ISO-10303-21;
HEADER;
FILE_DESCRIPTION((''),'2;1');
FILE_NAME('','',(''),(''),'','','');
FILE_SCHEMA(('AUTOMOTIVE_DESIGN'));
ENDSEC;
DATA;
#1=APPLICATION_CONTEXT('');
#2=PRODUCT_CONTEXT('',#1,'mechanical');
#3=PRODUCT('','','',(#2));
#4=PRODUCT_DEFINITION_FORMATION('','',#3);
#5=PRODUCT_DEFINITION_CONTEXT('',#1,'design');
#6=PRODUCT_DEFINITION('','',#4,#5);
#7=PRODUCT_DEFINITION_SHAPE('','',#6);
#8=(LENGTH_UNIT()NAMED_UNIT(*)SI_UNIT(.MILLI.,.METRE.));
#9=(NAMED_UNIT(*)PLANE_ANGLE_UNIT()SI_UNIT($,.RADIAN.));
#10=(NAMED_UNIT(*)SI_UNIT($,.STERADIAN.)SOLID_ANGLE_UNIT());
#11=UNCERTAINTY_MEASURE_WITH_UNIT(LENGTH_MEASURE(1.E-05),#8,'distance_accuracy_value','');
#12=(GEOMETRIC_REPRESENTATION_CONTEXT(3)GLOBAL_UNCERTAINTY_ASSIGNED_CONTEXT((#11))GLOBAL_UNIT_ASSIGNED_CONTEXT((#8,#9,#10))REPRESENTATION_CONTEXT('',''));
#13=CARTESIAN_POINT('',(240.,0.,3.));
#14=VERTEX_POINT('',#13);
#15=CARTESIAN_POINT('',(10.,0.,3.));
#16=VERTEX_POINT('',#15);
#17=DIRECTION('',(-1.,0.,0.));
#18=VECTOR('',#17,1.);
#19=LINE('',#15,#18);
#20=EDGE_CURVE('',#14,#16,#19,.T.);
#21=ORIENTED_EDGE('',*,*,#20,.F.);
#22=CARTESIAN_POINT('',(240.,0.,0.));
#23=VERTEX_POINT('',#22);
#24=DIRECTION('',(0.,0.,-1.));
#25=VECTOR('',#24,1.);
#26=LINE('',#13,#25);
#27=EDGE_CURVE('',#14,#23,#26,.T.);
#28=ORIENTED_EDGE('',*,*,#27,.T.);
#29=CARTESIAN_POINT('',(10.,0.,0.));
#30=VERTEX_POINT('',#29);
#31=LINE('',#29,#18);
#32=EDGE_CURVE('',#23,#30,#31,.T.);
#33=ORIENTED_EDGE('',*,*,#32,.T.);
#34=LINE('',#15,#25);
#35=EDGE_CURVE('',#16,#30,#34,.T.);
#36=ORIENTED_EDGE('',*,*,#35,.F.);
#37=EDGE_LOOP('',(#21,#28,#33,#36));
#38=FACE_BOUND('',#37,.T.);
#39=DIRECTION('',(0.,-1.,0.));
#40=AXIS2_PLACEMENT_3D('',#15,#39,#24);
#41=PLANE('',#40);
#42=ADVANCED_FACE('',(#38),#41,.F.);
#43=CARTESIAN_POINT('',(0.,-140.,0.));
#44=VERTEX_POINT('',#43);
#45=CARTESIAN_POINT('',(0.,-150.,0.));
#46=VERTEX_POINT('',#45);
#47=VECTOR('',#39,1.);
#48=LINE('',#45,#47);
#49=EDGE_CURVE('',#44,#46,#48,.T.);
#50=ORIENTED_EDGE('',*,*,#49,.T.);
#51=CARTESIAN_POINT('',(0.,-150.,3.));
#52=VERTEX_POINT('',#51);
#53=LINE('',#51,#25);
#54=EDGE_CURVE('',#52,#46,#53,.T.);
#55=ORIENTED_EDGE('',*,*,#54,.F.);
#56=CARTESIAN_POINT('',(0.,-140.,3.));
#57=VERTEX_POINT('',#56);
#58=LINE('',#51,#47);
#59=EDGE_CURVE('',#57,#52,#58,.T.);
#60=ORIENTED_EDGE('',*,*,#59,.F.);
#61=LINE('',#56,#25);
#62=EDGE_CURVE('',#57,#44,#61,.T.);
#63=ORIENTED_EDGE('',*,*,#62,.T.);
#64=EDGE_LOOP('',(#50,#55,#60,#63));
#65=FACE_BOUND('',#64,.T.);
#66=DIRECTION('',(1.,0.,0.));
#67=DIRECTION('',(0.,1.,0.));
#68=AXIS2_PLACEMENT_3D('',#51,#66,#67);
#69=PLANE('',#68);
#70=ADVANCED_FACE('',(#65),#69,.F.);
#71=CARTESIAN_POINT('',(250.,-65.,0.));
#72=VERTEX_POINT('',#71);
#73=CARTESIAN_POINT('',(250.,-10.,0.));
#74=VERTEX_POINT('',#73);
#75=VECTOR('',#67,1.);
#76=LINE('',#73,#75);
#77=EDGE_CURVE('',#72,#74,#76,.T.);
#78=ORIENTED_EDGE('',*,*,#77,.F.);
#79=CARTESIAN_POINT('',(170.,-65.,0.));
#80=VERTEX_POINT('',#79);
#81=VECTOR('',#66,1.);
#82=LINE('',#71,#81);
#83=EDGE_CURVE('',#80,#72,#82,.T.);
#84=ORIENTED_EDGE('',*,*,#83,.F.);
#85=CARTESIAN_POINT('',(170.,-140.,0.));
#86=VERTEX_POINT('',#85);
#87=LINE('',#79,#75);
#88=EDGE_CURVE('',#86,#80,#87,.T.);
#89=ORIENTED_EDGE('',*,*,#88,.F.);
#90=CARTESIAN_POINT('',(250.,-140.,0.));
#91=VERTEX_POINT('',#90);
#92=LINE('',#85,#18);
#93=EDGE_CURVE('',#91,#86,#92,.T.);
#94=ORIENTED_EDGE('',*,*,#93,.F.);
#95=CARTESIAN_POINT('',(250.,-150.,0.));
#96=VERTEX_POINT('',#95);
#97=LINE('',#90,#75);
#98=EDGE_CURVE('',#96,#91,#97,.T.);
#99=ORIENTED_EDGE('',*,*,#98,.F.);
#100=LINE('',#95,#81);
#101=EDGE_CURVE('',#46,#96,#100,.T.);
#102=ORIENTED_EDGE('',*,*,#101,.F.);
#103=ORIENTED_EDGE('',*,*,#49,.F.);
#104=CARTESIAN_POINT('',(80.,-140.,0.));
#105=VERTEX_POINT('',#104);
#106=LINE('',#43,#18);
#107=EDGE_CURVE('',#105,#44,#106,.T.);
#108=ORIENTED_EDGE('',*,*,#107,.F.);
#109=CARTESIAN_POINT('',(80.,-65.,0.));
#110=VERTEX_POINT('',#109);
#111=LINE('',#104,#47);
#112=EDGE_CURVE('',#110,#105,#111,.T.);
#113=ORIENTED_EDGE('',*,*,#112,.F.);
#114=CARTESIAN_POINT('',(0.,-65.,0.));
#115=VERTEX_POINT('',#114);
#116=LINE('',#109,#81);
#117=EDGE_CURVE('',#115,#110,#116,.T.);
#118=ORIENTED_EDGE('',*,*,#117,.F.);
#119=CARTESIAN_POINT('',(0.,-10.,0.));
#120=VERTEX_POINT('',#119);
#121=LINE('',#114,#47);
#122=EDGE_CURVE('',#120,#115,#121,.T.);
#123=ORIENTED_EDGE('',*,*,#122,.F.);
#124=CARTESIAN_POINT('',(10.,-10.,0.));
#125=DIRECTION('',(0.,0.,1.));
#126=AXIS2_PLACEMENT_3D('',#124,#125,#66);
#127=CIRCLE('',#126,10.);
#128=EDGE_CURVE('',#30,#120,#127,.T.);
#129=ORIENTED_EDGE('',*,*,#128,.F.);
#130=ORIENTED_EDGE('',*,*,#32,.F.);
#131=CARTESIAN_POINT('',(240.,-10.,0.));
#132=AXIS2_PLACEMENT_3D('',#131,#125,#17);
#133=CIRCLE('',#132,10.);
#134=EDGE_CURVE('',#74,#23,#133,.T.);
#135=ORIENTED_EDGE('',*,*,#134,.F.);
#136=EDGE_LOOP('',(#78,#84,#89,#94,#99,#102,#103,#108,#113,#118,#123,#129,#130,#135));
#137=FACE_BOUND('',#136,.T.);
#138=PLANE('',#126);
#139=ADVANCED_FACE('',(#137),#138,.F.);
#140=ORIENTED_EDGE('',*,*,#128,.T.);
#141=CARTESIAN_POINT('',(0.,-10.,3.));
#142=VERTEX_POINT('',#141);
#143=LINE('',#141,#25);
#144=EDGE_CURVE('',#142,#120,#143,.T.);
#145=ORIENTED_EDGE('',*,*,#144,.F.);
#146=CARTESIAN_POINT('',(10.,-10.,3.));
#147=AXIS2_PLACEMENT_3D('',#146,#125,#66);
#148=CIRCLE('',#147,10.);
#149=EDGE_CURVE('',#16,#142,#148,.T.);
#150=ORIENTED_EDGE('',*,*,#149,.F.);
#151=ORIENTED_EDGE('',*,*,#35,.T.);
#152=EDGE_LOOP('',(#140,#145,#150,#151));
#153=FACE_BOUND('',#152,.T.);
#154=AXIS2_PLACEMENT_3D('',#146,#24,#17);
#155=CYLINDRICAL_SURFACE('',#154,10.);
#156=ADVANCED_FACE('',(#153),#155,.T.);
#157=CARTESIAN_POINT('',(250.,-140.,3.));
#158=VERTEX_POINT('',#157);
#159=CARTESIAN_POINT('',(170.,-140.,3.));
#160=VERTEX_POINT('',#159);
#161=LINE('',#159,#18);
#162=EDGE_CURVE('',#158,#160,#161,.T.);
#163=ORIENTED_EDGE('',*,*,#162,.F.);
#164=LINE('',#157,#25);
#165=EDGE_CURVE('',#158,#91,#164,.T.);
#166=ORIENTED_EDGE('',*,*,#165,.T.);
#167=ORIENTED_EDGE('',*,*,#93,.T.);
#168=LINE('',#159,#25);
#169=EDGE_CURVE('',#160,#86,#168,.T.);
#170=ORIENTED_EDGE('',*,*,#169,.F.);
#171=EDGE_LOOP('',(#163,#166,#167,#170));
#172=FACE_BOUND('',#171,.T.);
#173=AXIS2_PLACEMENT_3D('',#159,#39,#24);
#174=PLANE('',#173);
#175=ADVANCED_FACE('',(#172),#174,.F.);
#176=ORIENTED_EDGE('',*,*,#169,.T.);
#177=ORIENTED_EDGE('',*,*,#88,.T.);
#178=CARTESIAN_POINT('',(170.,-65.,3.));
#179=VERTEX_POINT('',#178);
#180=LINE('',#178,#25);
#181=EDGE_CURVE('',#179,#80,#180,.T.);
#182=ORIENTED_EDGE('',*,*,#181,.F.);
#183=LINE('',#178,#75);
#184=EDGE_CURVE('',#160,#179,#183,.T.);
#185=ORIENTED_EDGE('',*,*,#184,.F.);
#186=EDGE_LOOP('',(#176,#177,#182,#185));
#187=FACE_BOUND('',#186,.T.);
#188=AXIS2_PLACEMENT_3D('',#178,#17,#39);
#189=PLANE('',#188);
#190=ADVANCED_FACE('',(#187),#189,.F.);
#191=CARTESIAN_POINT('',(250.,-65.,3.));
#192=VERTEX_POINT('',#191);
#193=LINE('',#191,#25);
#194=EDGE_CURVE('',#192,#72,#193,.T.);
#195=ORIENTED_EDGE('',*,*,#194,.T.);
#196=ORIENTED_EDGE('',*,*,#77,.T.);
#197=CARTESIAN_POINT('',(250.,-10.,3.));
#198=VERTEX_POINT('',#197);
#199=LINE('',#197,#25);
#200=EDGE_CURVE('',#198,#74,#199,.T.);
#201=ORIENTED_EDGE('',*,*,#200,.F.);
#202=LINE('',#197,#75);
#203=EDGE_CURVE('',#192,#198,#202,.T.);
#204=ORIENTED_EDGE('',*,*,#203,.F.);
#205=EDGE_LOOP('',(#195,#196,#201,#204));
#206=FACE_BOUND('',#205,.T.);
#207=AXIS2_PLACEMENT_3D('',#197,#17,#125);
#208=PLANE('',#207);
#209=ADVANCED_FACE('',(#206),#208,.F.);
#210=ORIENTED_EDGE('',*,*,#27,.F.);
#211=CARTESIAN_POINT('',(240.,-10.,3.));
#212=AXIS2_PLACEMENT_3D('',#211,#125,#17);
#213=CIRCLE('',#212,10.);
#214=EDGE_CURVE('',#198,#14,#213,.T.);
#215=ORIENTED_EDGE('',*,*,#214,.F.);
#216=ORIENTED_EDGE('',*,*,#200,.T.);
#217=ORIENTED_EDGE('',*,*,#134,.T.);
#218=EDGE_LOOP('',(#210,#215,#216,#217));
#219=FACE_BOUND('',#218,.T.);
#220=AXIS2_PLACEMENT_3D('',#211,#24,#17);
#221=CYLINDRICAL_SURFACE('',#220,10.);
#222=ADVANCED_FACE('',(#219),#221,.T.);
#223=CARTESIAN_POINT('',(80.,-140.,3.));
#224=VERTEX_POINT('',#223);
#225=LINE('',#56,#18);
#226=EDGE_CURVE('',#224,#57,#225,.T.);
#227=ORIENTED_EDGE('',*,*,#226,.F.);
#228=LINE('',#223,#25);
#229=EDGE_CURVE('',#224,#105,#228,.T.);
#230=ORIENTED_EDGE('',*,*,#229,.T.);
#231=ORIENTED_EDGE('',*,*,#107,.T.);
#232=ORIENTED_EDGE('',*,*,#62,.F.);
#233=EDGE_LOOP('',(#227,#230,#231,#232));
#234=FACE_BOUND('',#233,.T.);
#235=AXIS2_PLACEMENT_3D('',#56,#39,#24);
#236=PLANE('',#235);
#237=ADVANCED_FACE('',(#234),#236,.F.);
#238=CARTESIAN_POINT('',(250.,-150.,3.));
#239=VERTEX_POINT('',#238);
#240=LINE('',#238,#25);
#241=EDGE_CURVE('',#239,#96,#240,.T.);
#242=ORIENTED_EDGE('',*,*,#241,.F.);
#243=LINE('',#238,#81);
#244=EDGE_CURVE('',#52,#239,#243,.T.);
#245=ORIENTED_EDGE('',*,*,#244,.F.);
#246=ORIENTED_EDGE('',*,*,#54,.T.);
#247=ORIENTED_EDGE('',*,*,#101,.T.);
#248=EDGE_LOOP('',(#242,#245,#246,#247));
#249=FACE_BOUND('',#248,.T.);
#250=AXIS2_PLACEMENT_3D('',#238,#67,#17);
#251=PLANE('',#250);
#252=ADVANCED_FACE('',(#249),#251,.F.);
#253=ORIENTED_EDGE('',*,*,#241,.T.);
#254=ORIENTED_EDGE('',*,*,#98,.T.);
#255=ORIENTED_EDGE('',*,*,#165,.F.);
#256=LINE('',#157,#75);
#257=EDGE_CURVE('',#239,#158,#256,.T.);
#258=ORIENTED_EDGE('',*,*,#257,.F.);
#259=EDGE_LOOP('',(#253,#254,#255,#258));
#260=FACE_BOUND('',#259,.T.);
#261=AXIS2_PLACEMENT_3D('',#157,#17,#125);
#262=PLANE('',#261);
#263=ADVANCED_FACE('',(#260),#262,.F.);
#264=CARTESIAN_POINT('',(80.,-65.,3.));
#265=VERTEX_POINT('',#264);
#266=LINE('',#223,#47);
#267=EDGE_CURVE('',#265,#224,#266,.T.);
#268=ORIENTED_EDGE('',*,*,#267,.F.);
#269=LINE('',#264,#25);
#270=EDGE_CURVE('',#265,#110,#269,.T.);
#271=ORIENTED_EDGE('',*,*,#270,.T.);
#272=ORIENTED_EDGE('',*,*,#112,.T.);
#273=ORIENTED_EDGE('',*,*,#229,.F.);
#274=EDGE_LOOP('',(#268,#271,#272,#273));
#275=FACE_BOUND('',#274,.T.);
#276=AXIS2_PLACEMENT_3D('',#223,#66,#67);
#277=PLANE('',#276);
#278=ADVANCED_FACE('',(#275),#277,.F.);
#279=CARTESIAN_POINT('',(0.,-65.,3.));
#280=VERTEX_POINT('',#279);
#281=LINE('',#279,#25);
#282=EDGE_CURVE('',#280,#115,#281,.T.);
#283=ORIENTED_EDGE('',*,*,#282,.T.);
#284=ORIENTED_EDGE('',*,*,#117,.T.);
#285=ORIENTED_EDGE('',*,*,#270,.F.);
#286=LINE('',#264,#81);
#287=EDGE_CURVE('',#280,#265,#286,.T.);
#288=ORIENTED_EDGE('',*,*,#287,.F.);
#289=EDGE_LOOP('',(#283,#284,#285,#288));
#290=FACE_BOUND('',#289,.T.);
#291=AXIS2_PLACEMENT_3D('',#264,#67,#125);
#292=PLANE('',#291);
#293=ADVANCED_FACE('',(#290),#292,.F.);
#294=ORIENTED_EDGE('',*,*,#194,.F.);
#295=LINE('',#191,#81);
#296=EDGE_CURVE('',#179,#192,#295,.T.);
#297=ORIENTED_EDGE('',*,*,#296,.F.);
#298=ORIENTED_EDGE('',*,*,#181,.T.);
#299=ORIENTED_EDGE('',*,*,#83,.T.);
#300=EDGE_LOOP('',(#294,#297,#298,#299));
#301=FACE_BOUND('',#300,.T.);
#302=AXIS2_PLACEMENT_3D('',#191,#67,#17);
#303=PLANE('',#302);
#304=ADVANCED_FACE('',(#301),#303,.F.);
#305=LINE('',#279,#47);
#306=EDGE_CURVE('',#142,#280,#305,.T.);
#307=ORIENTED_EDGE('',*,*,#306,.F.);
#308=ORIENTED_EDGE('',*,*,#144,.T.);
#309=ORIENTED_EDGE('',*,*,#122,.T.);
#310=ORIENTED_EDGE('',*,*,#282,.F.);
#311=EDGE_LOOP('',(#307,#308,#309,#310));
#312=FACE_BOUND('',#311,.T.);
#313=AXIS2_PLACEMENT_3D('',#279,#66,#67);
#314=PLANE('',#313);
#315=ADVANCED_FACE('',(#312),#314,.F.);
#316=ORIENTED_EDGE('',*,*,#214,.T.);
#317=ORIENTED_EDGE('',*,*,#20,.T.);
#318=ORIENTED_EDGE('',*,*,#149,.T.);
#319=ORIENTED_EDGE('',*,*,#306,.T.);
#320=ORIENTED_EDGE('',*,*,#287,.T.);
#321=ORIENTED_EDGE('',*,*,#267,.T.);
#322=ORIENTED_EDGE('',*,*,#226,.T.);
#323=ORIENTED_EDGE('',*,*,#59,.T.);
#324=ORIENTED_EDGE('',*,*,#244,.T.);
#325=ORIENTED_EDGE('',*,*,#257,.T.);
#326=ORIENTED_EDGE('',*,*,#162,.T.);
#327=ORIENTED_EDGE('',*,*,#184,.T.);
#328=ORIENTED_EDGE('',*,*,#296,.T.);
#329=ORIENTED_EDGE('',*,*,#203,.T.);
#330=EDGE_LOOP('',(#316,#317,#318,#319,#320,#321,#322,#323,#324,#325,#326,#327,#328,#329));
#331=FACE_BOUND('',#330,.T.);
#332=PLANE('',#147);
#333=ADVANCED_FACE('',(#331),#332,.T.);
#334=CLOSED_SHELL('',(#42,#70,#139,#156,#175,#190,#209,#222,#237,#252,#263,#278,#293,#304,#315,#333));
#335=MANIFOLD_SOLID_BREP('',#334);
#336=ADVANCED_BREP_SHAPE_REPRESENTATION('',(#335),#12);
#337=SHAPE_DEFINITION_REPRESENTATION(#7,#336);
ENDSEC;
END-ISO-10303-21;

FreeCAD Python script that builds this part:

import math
import FreeCAD as App
import Part
import Sketcher

doc = App.newDocument("Part")
body = doc.addObject("PartDesign::Body", "Body")

sketch1 = doc.addObject("Sketcher::SketchObject", "Sketch")
body.addObject(sketch1)
sketch1.AttachmentSupport = (doc.XY_Plane, [""])
sketch1.MapMode = "FlatFace"
sketch1.addGeometry([
    Part.LineSegment(App.Vector(240, 0, 0), App.Vector(10, 0, 0)),
    Part.ArcOfCircle(Part.Circle(App.Vector(10, -10, 0), App.Vector(0, 0, 1), 10), math.radians(90), math.radians(180)),
    Part.LineSegment(App.Vector(0, -10, 0), App.Vector(0, -65, 0)),
    Part.LineSegment(App.Vector(0, -65, 0), App.Vector(80, -65, 0)),
    Part.LineSegment(App.Vector(80, -65, 0), App.Vector(80, -140, 0)),
    Part.LineSegment(App.Vector(80, -140, 0), App.Vector(0, -140, 0)),
    Part.LineSegment(App.Vector(0, -140, 0), App.Vector(0, -150, 0)),
    Part.LineSegment(App.Vector(0, -150, 0), App.Vector(250, -150, 0)),
    Part.LineSegment(App.Vector(250, -150, 0), App.Vector(250, -140, 0)),
    Part.LineSegment(App.Vector(250, -140, 0), App.Vector(170, -140, 0)),
    Part.LineSegment(App.Vector(170, -140, 0), App.Vector(170, -65, 0)),
    Part.LineSegment(App.Vector(170, -65, 0), App.Vector(250, -65, 0)),
    Part.LineSegment(App.Vector(250, -65, 0), App.Vector(250, -10, 0)),
    Part.ArcOfCircle(Part.Circle(App.Vector(240, -10, 0), App.Vector(0, 0, 1), 10), math.radians(0), math.radians(90)),
], False)
sketch1.addConstraint([
    Sketcher.Constraint("Tangent", 0, 2, 1, 1),
    Sketcher.Constraint("Tangent", 1, 2, 2, 1),
    Sketcher.Constraint("Coincident", 2, 2, 3, 1),
    Sketcher.Constraint("Coincident", 3, 2, 4, 1),
    Sketcher.Constraint("Coincident", 4, 2, 5, 1),
    Sketcher.Constraint("Coincident", 5, 2, 6, 1),
    Sketcher.Constraint("Coincident", 6, 2, 7, 1),
    Sketcher.Constraint("Coincident", 7, 2, 8, 1),
    Sketcher.Constraint("Coincident", 8, 2, 9, 1),
    Sketcher.Constraint("Coincident", 9, 2, 10, 1),
    Sketcher.Constraint("Coincident", 10, 2, 11, 1),
    Sketcher.Constraint("Coincident", 11, 2, 12, 1),
    Sketcher.Constraint("Tangent", 12, 2, 13, 1),
    Sketcher.Constraint("Tangent", 13, 2, 0, 1),
    Sketcher.Constraint("Horizontal", 0),
    Sketcher.Constraint("Vertical", 2),
    Sketcher.Constraint("Horizontal", 3),
    Sketcher.Constraint("Vertical", 4),
    Sketcher.Constraint("Horizontal", 5),
    Sketcher.Constraint("Vertical", 6),
    Sketcher.Constraint("Horizontal", 7),
    Sketcher.Constraint("Vertical", 8),
    Sketcher.Constraint("Horizontal", 9),
    Sketcher.Constraint("Vertical", 10),
    Sketcher.Constraint("Horizontal", 11),
    Sketcher.Constraint("Vertical", 12),
    Sketcher.Constraint("Equal", 1, 13),
    Sketcher.Constraint("PointOnObject", 0, 2, -1),
    Sketcher.Constraint("PointOnObject", 1, 2, -2),
    Sketcher.Constraint("PointOnObject", 5, 2, -2),
    Sketcher.Constraint("Horizontal", 5, 2, 8, 2),
    Sketcher.Constraint("Horizontal", 3, 2, 10, 2),
    Sketcher.Constraint("Vertical", 8, 2, 11, 2),
    Sketcher.Constraint("Equal", 5, 9),
    Sketcher.Constraint("Radius", 1, 10.0),
    Sketcher.Constraint("DistanceX", 0, 2, 0, 1, 230.0),
    Sketcher.Constraint("DistanceX", 3, 1, 3, 2, 80.0),
    Sketcher.Constraint("DistanceY", 2, 2, 2, 1, 55.0),
    Sketcher.Constraint("DistanceY", 4, 2, 4, 1, 75.0),
    Sketcher.Constraint("DistanceY", 6, 2, 6, 1, 10.0),
])
pad1 = doc.addObject("PartDesign::Pad", "Pad")
body.addObject(pad1)
pad1.Profile = sketch1
pad1.Length = 3

doc.recompute()
